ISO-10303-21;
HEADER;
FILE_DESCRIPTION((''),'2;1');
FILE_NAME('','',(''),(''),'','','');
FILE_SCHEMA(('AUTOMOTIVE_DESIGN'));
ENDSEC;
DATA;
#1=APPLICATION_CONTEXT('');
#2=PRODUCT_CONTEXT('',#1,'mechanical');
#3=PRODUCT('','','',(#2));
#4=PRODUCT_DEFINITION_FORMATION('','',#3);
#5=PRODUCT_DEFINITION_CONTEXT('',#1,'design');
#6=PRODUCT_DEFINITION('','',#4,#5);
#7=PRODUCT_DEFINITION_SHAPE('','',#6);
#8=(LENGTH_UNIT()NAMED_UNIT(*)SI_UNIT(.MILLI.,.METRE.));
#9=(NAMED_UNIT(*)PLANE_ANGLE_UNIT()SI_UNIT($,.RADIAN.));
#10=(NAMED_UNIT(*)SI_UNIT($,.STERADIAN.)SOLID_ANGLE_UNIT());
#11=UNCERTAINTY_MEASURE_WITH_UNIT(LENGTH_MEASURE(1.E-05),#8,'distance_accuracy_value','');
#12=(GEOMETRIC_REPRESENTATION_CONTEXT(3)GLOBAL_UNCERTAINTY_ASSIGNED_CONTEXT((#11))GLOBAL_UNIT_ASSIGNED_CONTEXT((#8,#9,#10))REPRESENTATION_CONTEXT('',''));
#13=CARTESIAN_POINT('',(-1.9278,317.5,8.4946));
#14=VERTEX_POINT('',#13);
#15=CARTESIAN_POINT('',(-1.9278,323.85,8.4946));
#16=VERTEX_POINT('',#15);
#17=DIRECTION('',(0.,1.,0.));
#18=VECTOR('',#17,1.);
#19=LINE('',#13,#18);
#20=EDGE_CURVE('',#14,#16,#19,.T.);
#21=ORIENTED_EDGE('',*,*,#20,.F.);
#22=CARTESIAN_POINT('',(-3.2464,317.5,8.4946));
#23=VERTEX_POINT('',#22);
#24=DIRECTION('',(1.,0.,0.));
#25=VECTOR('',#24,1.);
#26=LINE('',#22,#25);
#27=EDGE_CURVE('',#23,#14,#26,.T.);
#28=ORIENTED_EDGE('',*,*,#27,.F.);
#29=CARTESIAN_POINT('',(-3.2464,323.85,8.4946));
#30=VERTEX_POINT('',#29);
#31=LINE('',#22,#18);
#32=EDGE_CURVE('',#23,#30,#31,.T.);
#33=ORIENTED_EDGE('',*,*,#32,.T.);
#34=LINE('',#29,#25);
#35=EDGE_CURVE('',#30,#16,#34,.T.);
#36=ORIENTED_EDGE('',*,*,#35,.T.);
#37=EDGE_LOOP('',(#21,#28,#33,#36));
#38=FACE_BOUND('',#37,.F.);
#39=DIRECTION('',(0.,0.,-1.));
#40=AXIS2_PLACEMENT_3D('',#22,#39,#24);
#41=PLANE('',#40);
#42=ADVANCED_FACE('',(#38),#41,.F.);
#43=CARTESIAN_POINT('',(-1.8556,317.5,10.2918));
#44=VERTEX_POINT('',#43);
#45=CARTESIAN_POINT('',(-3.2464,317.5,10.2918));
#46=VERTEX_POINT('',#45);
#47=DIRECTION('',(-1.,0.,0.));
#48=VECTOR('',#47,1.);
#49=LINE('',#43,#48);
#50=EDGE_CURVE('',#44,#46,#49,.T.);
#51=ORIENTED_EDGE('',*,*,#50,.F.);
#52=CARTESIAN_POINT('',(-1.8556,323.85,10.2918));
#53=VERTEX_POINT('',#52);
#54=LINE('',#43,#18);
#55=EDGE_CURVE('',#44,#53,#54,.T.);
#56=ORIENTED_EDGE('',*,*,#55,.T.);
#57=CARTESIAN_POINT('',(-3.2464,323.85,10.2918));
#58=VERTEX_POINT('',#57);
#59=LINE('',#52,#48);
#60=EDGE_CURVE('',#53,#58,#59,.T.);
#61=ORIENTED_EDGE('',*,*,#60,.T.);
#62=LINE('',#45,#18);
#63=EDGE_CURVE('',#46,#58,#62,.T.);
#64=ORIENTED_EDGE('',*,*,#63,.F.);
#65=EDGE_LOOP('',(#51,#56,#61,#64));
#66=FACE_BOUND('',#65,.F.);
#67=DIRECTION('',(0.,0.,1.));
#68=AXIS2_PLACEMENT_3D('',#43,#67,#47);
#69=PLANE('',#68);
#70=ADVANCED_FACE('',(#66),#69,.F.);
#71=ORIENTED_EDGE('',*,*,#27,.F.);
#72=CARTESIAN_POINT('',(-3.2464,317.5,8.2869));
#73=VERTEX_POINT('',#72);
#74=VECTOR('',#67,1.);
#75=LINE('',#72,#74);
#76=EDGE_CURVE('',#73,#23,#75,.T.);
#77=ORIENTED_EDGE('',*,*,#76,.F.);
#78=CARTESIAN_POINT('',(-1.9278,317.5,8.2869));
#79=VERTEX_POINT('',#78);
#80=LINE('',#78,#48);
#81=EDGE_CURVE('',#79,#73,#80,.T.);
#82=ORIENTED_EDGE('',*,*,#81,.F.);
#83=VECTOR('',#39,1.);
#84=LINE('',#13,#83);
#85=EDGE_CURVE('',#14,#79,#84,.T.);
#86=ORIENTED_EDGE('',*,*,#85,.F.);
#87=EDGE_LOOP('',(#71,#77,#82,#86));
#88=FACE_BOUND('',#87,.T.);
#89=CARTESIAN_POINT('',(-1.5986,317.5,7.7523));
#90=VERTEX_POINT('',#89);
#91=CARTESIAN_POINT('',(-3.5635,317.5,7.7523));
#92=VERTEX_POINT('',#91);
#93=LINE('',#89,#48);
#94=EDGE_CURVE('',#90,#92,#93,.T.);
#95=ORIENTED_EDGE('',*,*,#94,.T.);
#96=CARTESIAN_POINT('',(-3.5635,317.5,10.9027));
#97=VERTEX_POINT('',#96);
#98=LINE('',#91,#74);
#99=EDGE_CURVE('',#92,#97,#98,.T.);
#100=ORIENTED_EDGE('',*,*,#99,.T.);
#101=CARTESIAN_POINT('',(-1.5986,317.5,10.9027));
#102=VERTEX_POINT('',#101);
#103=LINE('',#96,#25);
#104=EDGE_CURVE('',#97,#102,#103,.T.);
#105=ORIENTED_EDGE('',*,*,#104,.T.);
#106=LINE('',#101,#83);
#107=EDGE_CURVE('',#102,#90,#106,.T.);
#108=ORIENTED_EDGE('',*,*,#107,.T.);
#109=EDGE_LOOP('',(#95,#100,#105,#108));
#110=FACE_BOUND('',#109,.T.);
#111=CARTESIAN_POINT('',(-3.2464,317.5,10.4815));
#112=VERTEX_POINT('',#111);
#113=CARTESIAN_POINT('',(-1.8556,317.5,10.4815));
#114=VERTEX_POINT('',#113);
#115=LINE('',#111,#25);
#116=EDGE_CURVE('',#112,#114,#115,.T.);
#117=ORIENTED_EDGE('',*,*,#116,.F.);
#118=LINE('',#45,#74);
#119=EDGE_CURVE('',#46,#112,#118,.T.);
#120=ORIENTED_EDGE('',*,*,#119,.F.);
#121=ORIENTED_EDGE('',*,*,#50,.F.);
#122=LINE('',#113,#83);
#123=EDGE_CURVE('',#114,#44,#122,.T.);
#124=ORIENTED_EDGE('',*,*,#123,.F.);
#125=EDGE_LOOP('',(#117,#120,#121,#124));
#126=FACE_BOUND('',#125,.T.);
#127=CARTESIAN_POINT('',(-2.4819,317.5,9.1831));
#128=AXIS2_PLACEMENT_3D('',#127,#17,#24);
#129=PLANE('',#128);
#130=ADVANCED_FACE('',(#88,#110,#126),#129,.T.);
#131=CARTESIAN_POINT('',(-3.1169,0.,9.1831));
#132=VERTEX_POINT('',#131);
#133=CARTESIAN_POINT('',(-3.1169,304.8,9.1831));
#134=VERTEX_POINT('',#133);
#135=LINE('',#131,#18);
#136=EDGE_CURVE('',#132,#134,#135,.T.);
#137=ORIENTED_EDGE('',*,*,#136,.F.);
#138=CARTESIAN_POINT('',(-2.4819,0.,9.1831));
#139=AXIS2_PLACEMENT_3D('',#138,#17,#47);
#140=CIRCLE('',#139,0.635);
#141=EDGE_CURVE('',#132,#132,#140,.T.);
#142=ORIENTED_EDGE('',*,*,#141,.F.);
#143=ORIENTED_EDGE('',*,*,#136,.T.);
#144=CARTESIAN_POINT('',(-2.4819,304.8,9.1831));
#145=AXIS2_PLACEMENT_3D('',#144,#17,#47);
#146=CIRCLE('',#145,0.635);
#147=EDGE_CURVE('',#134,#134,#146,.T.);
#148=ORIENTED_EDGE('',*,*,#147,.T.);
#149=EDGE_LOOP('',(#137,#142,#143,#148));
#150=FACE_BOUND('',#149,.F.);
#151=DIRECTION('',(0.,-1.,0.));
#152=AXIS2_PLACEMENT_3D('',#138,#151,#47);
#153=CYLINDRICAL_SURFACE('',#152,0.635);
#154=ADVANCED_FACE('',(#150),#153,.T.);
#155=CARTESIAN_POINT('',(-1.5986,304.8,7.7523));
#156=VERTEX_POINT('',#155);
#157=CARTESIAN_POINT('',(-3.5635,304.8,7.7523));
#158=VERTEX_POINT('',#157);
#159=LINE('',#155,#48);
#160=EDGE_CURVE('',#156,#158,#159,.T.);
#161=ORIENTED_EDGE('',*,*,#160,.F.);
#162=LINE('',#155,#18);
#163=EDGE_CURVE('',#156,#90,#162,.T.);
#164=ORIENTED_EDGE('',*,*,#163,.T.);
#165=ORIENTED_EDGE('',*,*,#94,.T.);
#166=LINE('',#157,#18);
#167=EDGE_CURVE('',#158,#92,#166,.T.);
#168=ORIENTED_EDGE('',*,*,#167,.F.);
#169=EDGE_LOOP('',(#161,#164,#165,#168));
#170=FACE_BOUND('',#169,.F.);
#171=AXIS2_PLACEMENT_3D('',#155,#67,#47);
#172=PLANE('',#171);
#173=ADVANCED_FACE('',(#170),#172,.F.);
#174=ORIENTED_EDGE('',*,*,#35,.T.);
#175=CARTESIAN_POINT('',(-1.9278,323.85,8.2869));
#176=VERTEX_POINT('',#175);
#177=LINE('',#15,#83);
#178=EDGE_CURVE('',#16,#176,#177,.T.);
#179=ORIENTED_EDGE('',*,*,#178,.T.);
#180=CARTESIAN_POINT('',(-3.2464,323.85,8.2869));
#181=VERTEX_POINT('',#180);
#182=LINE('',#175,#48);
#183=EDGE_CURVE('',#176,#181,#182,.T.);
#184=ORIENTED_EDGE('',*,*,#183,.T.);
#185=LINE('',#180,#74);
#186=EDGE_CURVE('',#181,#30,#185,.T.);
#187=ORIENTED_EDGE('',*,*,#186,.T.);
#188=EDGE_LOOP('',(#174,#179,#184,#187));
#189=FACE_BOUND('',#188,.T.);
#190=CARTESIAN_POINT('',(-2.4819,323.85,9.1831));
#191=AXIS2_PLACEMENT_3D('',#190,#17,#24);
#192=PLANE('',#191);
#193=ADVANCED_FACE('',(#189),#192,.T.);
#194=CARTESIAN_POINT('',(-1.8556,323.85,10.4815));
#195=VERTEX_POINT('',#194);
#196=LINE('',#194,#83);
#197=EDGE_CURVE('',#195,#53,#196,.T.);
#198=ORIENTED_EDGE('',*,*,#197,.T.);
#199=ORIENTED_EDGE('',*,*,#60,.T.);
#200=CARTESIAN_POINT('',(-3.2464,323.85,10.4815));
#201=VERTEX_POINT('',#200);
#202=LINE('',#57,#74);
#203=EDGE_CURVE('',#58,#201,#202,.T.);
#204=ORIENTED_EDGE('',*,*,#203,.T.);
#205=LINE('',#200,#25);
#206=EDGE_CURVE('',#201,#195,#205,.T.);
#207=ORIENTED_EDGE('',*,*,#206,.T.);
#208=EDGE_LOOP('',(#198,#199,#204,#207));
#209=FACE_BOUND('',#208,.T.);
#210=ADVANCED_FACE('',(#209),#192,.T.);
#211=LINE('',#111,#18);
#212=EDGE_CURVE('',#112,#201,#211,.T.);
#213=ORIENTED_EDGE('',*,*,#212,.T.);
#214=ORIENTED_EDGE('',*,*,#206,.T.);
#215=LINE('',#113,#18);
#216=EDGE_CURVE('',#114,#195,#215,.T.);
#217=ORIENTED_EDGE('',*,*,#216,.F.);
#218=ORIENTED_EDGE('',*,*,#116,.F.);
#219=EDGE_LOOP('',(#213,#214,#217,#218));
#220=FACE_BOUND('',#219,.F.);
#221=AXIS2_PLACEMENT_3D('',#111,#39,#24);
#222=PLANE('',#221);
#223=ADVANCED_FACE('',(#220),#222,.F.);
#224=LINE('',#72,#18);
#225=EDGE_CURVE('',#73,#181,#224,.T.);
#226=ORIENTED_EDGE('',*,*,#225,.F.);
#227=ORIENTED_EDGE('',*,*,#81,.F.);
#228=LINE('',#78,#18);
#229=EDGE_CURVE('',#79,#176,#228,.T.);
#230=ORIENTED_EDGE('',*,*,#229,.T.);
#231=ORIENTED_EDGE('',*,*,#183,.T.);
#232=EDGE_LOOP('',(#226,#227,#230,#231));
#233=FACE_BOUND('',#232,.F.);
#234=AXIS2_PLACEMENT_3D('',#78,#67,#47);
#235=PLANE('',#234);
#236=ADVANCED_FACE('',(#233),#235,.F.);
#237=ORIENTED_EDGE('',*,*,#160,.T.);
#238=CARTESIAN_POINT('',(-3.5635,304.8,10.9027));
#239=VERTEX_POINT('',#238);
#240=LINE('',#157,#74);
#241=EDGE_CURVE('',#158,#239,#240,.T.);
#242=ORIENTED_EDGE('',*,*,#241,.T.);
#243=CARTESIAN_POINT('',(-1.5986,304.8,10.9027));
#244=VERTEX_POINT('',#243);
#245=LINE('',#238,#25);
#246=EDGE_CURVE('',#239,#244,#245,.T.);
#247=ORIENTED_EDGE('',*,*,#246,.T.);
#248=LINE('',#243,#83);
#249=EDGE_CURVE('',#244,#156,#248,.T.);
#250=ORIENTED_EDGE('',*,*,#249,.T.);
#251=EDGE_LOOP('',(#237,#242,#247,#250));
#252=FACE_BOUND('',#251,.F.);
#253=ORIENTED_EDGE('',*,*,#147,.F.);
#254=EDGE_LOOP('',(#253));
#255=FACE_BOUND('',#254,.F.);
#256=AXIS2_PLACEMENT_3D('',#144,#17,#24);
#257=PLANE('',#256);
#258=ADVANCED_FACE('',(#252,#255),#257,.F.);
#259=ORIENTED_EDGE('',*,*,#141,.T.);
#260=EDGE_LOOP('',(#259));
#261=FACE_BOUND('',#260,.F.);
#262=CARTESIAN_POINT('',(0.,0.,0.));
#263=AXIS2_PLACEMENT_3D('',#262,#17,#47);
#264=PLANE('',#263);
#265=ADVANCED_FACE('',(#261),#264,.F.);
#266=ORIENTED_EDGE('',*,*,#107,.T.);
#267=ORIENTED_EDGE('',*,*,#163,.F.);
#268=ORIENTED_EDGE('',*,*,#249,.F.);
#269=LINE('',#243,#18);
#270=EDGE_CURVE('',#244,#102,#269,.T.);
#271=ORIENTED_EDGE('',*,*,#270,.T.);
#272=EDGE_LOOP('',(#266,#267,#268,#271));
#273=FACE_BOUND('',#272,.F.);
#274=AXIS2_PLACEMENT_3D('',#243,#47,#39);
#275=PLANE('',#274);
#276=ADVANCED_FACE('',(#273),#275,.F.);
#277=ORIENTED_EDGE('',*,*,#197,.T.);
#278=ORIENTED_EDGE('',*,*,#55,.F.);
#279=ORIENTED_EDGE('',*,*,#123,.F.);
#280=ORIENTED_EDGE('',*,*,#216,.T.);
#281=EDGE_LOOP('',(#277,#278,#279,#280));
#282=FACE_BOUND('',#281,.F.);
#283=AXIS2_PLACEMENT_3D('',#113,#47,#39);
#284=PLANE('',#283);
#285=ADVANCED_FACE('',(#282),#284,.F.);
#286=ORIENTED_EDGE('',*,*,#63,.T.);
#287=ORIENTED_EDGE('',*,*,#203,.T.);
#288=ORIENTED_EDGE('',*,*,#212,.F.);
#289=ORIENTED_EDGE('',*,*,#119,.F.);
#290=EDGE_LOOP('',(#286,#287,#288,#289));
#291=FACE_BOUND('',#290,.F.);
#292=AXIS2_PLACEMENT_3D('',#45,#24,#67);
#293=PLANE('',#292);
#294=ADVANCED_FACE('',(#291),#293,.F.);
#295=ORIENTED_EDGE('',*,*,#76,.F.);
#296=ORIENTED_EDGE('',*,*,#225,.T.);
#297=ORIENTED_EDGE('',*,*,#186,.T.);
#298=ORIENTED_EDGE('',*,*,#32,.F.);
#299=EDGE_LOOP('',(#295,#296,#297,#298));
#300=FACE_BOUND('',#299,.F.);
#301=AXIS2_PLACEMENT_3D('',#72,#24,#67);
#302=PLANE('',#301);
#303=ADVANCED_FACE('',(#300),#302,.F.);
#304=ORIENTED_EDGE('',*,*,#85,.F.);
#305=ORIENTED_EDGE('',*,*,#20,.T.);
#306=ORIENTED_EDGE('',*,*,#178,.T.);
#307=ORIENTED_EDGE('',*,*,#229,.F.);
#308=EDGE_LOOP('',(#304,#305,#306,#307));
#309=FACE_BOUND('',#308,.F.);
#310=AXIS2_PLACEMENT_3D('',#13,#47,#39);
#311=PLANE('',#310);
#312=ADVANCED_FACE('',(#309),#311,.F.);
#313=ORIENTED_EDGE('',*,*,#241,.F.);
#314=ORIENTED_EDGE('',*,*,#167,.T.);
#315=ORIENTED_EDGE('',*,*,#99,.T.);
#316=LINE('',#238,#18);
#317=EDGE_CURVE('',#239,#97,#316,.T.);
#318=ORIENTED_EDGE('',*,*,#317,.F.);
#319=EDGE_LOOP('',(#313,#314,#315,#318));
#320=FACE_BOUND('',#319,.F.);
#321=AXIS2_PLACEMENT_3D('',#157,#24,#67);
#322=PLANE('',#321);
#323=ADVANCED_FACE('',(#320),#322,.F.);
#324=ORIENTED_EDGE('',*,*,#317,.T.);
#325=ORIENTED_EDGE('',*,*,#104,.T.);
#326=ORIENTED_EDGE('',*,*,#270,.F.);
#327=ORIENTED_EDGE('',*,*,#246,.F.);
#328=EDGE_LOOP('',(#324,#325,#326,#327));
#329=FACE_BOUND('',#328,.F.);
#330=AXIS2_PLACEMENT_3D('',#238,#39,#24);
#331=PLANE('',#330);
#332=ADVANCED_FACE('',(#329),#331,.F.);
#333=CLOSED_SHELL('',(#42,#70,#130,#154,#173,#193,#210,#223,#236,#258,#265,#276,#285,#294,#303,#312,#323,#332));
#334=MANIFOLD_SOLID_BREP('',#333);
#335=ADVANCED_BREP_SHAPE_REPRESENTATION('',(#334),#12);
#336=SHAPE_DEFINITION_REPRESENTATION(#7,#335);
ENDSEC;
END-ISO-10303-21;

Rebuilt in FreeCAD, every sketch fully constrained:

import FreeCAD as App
import Part
import Sketcher
Q = App.Units.Quantity


def add_polygon(sketch, points):
    """Adds a closed chain of lines whose ends are joined by coincident constraints."""
    first, n = sketch.GeometryCount, len(points)
    for a, b in zip(points, points[1:] + points[:1]):
        sketch.addGeometry(Part.LineSegment(App.Vector(*a, 0), App.Vector(*b, 0)), False)
    for i in range(n):
        sketch.addConstraint(Sketcher.Constraint("Coincident", first + i, 2, first + (i + 1) % n, 1))

doc = App.newDocument("Part")
body = doc.addObject("PartDesign::Body", "Body")

sketch1 = body.newObject("Sketcher::SketchObject", "Sketch")
sketch1.AttachmentSupport = (doc.getObject("XZ_Plane"), [""])
sketch1.MapMode = "FlatFace"
sketch1.addGeometry(Part.Circle(App.Vector(-2.4819, 9.1831, 0), App.Vector(0, 0, 1), 0.635), False)
sketch1.addConstraint([
    Sketcher.Constraint("Diameter", 0, Q("0.05 in")),
    Sketcher.Constraint("DistanceX", 0, 3, -1, 1, 2.482),
    Sketcher.Constraint("DistanceY", -1, 1, 0, 3, 9.183),
])
pad1 = body.newObject("PartDesign::Pad", "Pad")
pad1.Profile = sketch1
pad1.Length = Q("12 in")
pad1.Reversed = True

sketch2 = body.newObject("Sketcher::SketchObject", "Sketch001")
sketch2.AttachmentSupport = (doc.getObject("XZ_Plane"), [""])
sketch2.MapMode = "FlatFace"
sketch2.AttachmentOffset = App.Placement(App.Vector(0, 0, -12 * 25.4), App.Rotation())
add_polygon(sketch2, [(-3.5635, 7.7523), (-3.5635, 10.9027), (-1.5986, 10.9027), (-1.5986, 7.7523)])
sketch2.addConstraint([
    Sketcher.Constraint("Vertical", 0),
    Sketcher.Constraint("Horizontal", 1),
    Sketcher.Constraint("Vertical", 2),
    Sketcher.Constraint("Horizontal", 3),
    Sketcher.Constraint("DistanceX", 1, 1, 1, 2, 1.965),
    Sketcher.Constraint("DistanceY", 0, 1, 0, 2, 3.1504),
    Sketcher.Constraint("DistanceX", 0, 2, -1, 1, Q("0.1403 in")),
    Sketcher.Constraint("DistanceY", -1, 1, 2, 2, Q("0.3052 in")),
])
pad2 = body.newObject("PartDesign::Pad", "Pad001")
pad2.Profile = sketch2
pad2.Length = Q("0.5 in")
pad2.Reversed = True

sketch3 = body.newObject("Sketcher::SketchObject", "Sketch002")
sketch3.AttachmentSupport = (doc.getObject("XZ_Plane"), [""])
sketch3.MapMode = "FlatFace"
sketch3.AttachmentOffset = App.Placement(App.Vector(0, 0, -12.5 * 25.4), App.Rotation())
add_polygon(sketch3, [(-3.2464, 10.2918), (-3.2464, 10.4815), (-1.8556, 10.4815), (-1.8556, 10.2918)])
add_polygon(sketch3, [(-3.2464, 8.2869), (-3.2464, 8.4946), (-1.9278, 8.4946), (-1.9278, 8.2869)])
sketch3.addConstraint([
    Sketcher.Constraint("Vertical", 0),
    Sketcher.Constraint("Horizontal", 1),
    Sketcher.Constraint("Vertical", 2),
    Sketcher.Constraint("Horizontal", 3),
    Sketcher.Constraint("Vertical", 4),
    Sketcher.Constraint("Horizontal", 5),
    Sketcher.Constraint("Vertical", 6),
    Sketcher.Constraint("Horizontal", 7),
    Sketcher.Constraint("Vertical", 3, 2, 4, 2),
    Sketcher.Constraint("DistanceX", 1, 1, 1, 2, 1.3908),
    Sketcher.Constraint("DistanceX", 5, 1, 5, 2, 1.3186),
    Sketcher.Constraint("DistanceY", 0, 1, 0, 2, 0.1897),
    Sketcher.Constraint("DistanceY", 4, 1, 4, 2, 0.2077),
    Sketcher.Constraint("DistanceX", 0, 2, -1, 1, Q("0.1278 in")),
    Sketcher.Constraint("DistanceY", -1, 1, 2, 2, Q("0.4052 in")),
    Sketcher.Constraint("DistanceY", 6, 2, 1, 2, Q("0.0864 in")),
])
pad3 = body.newObject("PartDesign::Pad", "Pad002")
pad3.Profile = sketch3
pad3.Length = Q("0.25 in")
pad3.Reversed = True

doc.recompute()
